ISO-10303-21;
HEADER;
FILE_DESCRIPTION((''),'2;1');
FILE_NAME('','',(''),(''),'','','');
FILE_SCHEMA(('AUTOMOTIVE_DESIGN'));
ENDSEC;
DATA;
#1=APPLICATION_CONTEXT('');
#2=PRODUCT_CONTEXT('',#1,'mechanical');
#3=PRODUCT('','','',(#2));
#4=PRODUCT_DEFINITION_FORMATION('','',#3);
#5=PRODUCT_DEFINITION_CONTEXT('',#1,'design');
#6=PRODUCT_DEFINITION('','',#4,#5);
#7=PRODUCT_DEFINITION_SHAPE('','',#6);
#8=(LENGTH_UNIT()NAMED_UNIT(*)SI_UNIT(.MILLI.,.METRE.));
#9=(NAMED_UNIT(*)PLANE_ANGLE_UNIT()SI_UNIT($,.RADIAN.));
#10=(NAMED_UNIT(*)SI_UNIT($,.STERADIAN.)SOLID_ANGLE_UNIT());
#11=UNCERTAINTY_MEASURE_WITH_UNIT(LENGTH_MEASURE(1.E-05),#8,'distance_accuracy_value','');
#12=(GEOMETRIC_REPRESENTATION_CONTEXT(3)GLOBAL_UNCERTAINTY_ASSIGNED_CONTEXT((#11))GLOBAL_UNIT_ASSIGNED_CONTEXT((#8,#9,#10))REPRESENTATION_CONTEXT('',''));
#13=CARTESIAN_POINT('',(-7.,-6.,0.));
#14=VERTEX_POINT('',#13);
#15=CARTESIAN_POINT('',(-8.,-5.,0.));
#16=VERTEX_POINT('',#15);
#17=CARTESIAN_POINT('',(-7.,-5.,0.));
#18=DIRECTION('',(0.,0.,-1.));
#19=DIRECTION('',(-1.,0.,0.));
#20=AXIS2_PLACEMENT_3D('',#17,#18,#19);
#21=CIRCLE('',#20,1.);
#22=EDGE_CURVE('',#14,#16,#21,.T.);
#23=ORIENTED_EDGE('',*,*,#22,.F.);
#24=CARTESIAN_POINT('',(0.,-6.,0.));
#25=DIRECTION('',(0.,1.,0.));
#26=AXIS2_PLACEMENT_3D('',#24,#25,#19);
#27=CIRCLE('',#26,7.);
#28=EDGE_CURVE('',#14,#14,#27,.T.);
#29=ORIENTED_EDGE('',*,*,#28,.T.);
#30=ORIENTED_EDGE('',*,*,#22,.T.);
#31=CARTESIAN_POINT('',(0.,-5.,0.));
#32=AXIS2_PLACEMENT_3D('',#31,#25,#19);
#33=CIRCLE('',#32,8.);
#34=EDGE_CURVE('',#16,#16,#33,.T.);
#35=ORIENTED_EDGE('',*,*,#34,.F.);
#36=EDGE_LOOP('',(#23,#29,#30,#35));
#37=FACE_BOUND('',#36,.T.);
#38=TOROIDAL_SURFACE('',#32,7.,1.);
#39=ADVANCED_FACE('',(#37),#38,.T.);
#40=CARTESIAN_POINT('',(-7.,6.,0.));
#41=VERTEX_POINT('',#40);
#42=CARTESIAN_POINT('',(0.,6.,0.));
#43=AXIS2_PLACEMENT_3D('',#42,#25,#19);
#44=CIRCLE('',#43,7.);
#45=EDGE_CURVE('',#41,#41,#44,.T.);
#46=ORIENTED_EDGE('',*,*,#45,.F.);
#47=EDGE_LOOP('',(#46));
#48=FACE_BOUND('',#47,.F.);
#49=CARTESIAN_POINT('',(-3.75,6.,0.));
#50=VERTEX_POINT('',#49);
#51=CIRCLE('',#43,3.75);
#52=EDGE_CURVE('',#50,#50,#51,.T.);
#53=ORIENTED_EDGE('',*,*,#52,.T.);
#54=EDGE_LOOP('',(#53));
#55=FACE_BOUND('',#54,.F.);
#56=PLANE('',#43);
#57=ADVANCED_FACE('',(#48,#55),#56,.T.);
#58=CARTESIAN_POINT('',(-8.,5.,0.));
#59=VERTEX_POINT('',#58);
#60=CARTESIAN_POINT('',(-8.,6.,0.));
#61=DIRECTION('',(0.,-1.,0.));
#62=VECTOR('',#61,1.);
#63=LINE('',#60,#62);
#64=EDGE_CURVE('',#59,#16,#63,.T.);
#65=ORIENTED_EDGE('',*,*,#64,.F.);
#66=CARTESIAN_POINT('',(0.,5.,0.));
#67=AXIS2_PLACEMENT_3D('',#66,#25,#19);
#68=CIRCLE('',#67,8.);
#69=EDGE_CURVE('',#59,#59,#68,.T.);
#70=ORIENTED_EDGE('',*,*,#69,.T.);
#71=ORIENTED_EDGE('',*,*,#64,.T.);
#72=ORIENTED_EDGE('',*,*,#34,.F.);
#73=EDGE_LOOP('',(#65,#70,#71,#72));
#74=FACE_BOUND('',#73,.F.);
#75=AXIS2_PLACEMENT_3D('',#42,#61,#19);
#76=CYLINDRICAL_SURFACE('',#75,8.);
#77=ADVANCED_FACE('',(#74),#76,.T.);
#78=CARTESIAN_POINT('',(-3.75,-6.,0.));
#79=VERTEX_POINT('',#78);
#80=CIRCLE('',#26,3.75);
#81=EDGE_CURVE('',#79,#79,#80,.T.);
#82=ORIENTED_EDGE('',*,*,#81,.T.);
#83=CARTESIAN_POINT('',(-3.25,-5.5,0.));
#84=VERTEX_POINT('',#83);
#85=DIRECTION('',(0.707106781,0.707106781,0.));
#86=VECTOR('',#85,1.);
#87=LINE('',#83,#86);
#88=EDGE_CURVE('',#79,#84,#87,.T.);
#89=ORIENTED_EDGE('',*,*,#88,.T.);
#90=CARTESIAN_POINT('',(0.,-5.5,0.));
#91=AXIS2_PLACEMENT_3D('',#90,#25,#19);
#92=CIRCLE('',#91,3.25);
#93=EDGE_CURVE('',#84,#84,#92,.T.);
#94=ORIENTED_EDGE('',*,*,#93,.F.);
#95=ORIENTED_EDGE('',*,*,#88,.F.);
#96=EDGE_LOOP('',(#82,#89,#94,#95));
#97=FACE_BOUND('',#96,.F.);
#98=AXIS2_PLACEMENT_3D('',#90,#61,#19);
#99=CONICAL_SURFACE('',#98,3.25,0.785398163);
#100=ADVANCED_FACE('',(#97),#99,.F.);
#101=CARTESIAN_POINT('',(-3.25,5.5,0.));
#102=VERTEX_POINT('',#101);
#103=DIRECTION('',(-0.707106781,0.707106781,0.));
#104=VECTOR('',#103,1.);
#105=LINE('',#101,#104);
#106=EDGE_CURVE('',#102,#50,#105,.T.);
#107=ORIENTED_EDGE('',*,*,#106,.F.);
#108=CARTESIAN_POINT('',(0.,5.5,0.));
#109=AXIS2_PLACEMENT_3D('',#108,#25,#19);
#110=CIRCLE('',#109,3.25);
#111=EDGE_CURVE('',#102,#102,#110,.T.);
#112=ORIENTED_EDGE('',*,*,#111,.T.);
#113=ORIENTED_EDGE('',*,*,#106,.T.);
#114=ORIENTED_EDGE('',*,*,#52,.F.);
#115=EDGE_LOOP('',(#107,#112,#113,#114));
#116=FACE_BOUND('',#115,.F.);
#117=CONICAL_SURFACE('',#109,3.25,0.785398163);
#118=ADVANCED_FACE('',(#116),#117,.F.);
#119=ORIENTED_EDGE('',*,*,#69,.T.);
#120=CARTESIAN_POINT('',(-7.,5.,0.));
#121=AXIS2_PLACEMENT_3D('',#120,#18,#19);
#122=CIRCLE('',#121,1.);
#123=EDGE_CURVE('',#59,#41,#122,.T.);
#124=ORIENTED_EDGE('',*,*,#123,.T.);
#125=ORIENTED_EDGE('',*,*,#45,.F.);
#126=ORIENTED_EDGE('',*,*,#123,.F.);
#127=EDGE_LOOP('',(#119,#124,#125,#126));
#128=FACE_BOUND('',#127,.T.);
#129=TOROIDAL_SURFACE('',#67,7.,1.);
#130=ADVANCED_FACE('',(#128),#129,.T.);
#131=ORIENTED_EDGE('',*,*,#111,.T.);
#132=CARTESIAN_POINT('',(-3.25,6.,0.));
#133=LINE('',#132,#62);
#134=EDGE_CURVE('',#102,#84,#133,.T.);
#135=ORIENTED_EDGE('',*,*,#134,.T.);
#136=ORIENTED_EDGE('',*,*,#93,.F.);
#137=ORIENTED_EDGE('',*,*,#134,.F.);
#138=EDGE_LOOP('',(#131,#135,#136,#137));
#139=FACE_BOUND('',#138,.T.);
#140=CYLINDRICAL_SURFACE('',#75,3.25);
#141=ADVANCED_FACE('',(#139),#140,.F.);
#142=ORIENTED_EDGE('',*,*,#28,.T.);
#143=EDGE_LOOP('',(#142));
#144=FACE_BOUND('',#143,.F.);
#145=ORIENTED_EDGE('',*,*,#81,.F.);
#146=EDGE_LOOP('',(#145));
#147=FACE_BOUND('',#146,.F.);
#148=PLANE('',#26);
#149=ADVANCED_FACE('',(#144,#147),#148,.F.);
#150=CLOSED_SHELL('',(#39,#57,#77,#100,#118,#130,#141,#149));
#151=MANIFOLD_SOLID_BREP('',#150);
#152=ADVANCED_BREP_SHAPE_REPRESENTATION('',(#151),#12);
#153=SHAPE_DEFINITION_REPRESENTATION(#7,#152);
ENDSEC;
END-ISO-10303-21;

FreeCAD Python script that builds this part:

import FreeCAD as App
import Part
import Sketcher
Q = App.Units.Quantity


def edges_at(feature, points):
    """Names of the edges that pass closest to the given points."""
    edges = feature.Shape.Edges
    near = lambda p: min(range(len(edges)), key=lambda i: edges[i].distToShape(Part.Vertex(*p))[0])
    return sorted({f"Edge{near(p) + 1}" for p in points})


def add_polygon(sketch, points):
    """Adds a closed chain of lines whose ends are joined by coincident constraints."""
    first, n = sketch.GeometryCount, len(points)
    for a, b in zip(points, points[1:] + points[:1]):
        sketch.addGeometry(Part.LineSegment(App.Vector(*a, 0), App.Vector(*b, 0)), False)
    for i in range(n):
        sketch.addConstraint(Sketcher.Constraint("Coincident", first + i, 2, first + (i + 1) % n, 1))

doc = App.newDocument("Part")
body = doc.addObject("PartDesign::Body", "Body")

sketch1 = body.newObject("Sketcher::SketchObject", "Sketch")
sketch1.AttachmentSupport = (doc.getObject("XY_Plane"), [""])
sketch1.MapMode = "FlatFace"
add_polygon(sketch1, [(-3.2, -6), (-3.2, 6), (-8, 6), (-8, -6)])
sketch1.addConstraint([
    Sketcher.Constraint("Vertical", 0),
    Sketcher.Constraint("Horizontal", 1),
    Sketcher.Constraint("Vertical", 2),
    Sketcher.Constraint("Horizontal", 3),
    Sketcher.Constraint("DistanceY", 0, 1, 0, 2, Q("12 mm")),
    Sketcher.Constraint("DistanceY", -1, 1, 0, 2, Q("6 mm")),
    Sketcher.Constraint("DistanceX", 1, 2, -1, 1, Q("8 mm")),
    Sketcher.Constraint("DistanceX", 1, 2, 1, 1, Q("4.75 mm")),
])
revolution = body.newObject("PartDesign::Revolution", "Revolution")
revolution.Profile = sketch1
revolution.ReferenceAxis = (sketch1, ["V_Axis"])
revolution.Angle = 360
doc.recompute()

fillet = body.newObject("PartDesign::Fillet", "Fillet")
fillet.Base = (revolution, edges_at(revolution, [(8, 6, 0), (8, -6, 0)]))
fillet.Radius = 1
doc.recompute()

chamfer = body.newObject("PartDesign::Chamfer", "Chamfer")
chamfer.Base = (fillet, edges_at(fillet, [(3.25, 6, 0), (3.25, -6, 0)]))
chamfer.Size = 0.5

doc.recompute()
